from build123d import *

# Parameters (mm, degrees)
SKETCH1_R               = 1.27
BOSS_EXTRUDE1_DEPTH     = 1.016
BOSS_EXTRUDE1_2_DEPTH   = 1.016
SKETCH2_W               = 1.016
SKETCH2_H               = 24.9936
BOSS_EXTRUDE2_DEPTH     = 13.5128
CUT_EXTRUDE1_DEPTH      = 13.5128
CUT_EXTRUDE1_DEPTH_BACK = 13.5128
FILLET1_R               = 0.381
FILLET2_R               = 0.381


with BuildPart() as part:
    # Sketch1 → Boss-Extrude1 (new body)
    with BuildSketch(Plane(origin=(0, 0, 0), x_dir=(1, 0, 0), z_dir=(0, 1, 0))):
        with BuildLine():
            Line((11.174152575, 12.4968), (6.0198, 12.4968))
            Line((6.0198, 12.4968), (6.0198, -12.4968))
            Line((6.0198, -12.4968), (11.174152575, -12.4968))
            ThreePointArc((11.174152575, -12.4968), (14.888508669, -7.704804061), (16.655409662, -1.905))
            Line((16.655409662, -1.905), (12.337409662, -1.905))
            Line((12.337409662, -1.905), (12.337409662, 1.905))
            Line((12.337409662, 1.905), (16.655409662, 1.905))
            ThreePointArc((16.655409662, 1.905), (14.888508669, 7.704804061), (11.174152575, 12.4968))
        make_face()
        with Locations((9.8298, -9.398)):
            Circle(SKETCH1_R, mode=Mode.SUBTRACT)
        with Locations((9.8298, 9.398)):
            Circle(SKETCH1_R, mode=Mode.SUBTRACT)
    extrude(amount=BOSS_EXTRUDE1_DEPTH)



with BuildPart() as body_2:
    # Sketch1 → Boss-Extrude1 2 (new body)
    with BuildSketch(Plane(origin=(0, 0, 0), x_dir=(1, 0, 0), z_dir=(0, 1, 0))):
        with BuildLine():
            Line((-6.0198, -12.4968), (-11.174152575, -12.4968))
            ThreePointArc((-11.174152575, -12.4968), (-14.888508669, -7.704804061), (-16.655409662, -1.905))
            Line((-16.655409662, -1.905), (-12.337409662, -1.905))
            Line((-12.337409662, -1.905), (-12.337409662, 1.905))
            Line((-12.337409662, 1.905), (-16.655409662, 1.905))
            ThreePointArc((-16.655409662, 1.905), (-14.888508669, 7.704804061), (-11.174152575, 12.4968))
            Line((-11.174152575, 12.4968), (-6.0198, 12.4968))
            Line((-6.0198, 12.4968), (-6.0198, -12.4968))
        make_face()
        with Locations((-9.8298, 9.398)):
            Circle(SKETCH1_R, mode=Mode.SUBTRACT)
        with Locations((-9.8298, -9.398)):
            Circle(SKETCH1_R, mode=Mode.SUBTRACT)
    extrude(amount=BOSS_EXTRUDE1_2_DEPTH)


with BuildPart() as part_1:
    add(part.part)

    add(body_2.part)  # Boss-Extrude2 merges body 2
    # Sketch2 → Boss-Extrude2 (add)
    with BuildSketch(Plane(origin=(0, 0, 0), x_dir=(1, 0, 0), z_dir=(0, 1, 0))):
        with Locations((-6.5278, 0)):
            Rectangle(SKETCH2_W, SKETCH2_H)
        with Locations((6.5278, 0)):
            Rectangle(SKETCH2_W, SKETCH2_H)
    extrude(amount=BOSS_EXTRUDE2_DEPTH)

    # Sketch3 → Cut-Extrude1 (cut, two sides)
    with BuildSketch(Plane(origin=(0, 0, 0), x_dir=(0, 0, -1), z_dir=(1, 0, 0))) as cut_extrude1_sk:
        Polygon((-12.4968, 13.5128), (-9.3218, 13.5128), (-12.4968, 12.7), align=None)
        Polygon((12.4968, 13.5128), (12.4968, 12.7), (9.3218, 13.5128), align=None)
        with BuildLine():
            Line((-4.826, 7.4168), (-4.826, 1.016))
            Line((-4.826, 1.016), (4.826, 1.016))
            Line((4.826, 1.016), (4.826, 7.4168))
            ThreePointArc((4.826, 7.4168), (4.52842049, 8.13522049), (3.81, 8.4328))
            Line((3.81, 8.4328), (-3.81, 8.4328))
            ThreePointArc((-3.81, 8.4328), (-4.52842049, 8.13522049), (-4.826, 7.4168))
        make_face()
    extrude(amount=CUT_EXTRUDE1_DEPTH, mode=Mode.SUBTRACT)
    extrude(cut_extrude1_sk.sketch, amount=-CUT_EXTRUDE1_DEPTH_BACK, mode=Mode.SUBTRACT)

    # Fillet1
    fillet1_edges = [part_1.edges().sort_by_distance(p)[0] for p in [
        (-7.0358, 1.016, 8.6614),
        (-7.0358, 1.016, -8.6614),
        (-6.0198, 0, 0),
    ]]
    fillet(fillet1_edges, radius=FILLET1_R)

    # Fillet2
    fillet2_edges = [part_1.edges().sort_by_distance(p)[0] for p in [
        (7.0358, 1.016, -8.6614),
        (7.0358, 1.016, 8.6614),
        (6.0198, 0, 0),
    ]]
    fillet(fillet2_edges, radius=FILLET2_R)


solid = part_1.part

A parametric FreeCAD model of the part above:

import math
import FreeCAD as App
import Part
import Sketcher

V = App.Vector
Q = App.Units.Quantity


def edges_at(feature, points):
    """Names of the edges that pass closest to the given points."""
    edges = feature.Shape.Edges
    near = lambda p: min(range(len(edges)), key=lambda i: edges[i].distToShape(Part.Vertex(*p))[0])
    return sorted({f"Edge{near(p) + 1}" for p in points})

doc = App.newDocument("Part")
body = doc.addObject("PartDesign::Body", "Body")

sketch1 = body.newObject("Sketcher::SketchObject", "Sketch")
sketch1.AttachmentSupport = (doc.getObject("XZ_Plane"), [""])
sketch1.MapMode = "FlatFace"
sketch1.addGeometry([
    Part.LineSegment(V(11.2, -12.5, 0), V(6, -12.5, 0)),
    Part.LineSegment(V(6, -12.5, 0), V(6, 12.5, 0)),
    Part.LineSegment(V(6, 12.5, 0), V(11.2, 12.5, 0)),
    Part.ArcOfCircle(Part.Circle(V(0, 0, 0), V(0, 0, 1), 16.8), math.radians(7), math.radians(48)),
    Part.LineSegment(V(16.7, 1.9, 0), V(12.3, 1.9, 0)),
    Part.LineSegment(V(12.3, 1.9, 0), V(12.3, -1.9, 0)),
    Part.LineSegment(V(12.3, -1.9, 0), V(16.7, -1.9, 0)),
    Part.ArcOfCircle(Part.Circle(V(0, 0, 0), V(0, 0, 1), 16.8), math.radians(-48), math.radians(-7)),
    Part.Circle(V(9.8, 9.4, 0), V(0, 0, 1), 1.3),
    Part.Circle(V(9.8, -9.4, 0), V(0, 0, 1), 1.3),
], False)
sketch1.addConstraint([
    Sketcher.Constraint("Coincident", 0, 2, 1, 1),
    Sketcher.Constraint("Coincident", 1, 2, 2, 1),
    Sketcher.Constraint("Coincident", 2, 2, 3, 2),
    Sketcher.Constraint("Coincident", 3, 1, 4, 1),
    Sketcher.Constraint("Coincident", 4, 2, 5, 1),
    Sketcher.Constraint("Coincident", 5, 2, 6, 1),
    Sketcher.Constraint("Coincident", 6, 2, 7, 2),
    Sketcher.Constraint("Coincident", 7, 1, 0, 1),
    Sketcher.Constraint("Horizontal", 0),
    Sketcher.Constraint("Vertical", 1),
    Sketcher.Constraint("Horizontal", 2),
    Sketcher.Constraint("Horizontal", 4),
    Sketcher.Constraint("Vertical", 5),
    Sketcher.Constraint("Horizontal", 6),
    Sketcher.Constraint("Coincident", 3, 3, -1, 1),
    Sketcher.Constraint("Coincident", 7, 3, -1, 1),
    Sketcher.Constraint("Equal", 3, 7),
    Sketcher.Constraint("Equal", 8, 9),
    Sketcher.Constraint("Symmetric", 8, 3, 9, 3, -1),
    Sketcher.Constraint("Vertical", 3, 1, 6, 2),
    Sketcher.Constraint("Vertical", 2, 2, 7, 1),
    Sketcher.Constraint("Diameter", 8, Q("0.1 in")),
    Sketcher.Constraint("Radius", 3, Q("0.66 in")),
    Sketcher.Constraint("DistanceX", 4, 2, 4, 1, Q("0.17 in")),
    Sketcher.Constraint("DistanceY", 5, 2, 5, 1, Q("0.15 in")),
    Sketcher.Constraint("DistanceY", 1, 1, 1, 2, Q("0.984 in")),
    Sketcher.Constraint("DistanceY", -1, 1, 8, 3, Q("0.37 in")),
    Sketcher.Constraint("DistanceX", 0, 2, 9, 3, Q("0.15 in")),
    Sketcher.Constraint("DistanceX", -1, 1, 8, 3, Q("0.387 in")),
])
pad1 = body.newObject("PartDesign::Pad", "Pad")
pad1.Profile = sketch1
pad1.Length = Q("0.04 in")
pad1.Reversed = True
body2 = doc.addObject("PartDesign::Body", "Body001")

sketch2 = body2.newObject("Sketcher::SketchObject", "Sketch001")
sketch2.AttachmentSupport = (doc.getObject("XZ_Plane001"), [""])
sketch2.MapMode = "FlatFace"
sketch2.addGeometry([
    Part.LineSegment(V(-11.2, 12.5, 0), V(-6, 12.5, 0)),
    Part.LineSegment(V(-6, 12.5, 0), V(-6, -12.5, 0)),
    Part.LineSegment(V(-6, -12.5, 0), V(-11.2, -12.5, 0)),
    Part.ArcOfCircle(Part.Circle(V(0, 0, 0), V(0, 0, 1), 16.8), math.radians(-173), math.radians(-132)),
    Part.LineSegment(V(-16.7, -1.9, 0), V(-12.3, -1.9, 0)),
    Part.LineSegment(V(-12.3, -1.9, 0), V(-12.3, 1.9, 0)),
    Part.LineSegment(V(-12.3, 1.9, 0), V(-16.7, 1.9, 0)),
    Part.ArcOfCircle(Part.Circle(V(0, 0, 0), V(0, 0, 1), 16.8), math.radians(132), math.radians(173)),
    Part.Circle(V(-9.8, 9.4, 0), V(0, 0, 1), 1.3),
    Part.Circle(V(-9.8, -9.4, 0), V(0, 0, 1), 1.3),
], False)
sketch2.addConstraint([
    Sketcher.Constraint("Coincident", 0, 2, 1, 1),
    Sketcher.Constraint("Coincident", 1, 2, 2, 1),
    Sketcher.Constraint("Coincident", 2, 2, 3, 2),
    Sketcher.Constraint("Coincident", 3, 1, 4, 1),
    Sketcher.Constraint("Coincident", 4, 2, 5, 1),
    Sketcher.Constraint("Coincident", 5, 2, 6, 1),
    Sketcher.Constraint("Coincident", 6, 2, 7, 2),
    Sketcher.Constraint("Coincident", 7, 1, 0, 1),
    Sketcher.Constraint("Horizontal", 0),
    Sketcher.Constraint("Vertical", 1),
    Sketcher.Constraint("Horizontal", 2),
    Sketcher.Constraint("Horizontal", 4),
    Sketcher.Constraint("Vertical", 5),
    Sketcher.Constraint("Horizontal", 6),
    Sketcher.Constraint("Coincident", 3, 3, -1, 1),
    Sketcher.Constraint("Coincident", 7, 3, -1, 1),
    Sketcher.Constraint("Equal", 3, 7),
    Sketcher.Constraint("Equal", 8, 9),
    Sketcher.Constraint("Symmetric", 8, 3, 9, 3, -1),
    Sketcher.Constraint("Vertical", 3, 1, 6, 2),
    Sketcher.Constraint("Vertical", 2, 2, 7, 1),
    Sketcher.Constraint("Diameter", 8, Q("0.1 in")),
    Sketcher.Constraint("Radius", 3, Q("0.66 in")),
    Sketcher.Constraint("DistanceX", 4, 1, 4, 2, Q("0.17 in")),
    Sketcher.Constraint("DistanceY", 5, 1, 5, 2, Q("0.15 in")),
    Sketcher.Constraint("DistanceY", 1, 2, 1, 1, Q("0.984 in")),
    Sketcher.Constraint("DistanceY", -1, 1, 8, 3, Q("0.37 in")),
    Sketcher.Constraint("DistanceX", 8, 3, 0, 2, Q("0.15 in")),
    Sketcher.Constraint("DistanceX", 8, 3, -1, 1, Q("0.387 in")),
])
pad2 = body2.newObject("PartDesign::Pad", "Pad001")
pad2.Profile = sketch2
pad2.Length = Q("0.04 in")
pad2.Reversed = True
body.AllowCompound = True
doc.recompute()

boolean = body.newObject("PartDesign::Boolean", "Boolean")
boolean.Type = "Fuse"
boolean.addObjects([body2])

sketch3 = body.newObject("Sketcher::SketchObject", "Sketch002")
sketch3.AttachmentSupport = (doc.getObject("XZ_Plane"), [""])
sketch3.MapMode = "FlatFace"
sketch3.addGeometry([
    Part.LineSegment(V(-7, -12.5, 0), V(-7, 12.5, 0)),
    Part.LineSegment(V(-7, 12.5, 0), V(-6, 12.5, 0)),
    Part.LineSegment(V(-6, 12.5, 0), V(-6, -12.5, 0)),
    Part.LineSegment(V(-6, -12.5, 0), V(-7, -12.5, 0)),
    Part.LineSegment(V(6, -12.5, 0), V(6, 12.5, 0)),
    Part.LineSegment(V(6, 12.5, 0), V(7, 12.5, 0)),
    Part.LineSegment(V(7, 12.5, 0), V(7, -12.5, 0)),
    Part.LineSegment(V(7, -12.5, 0), V(6, -12.5, 0)),
], False)
sketch3.addConstraint([
    Sketcher.Constraint("Coincident", 0, 2, 1, 1),
    Sketcher.Constraint("Coincident", 1, 2, 2, 1),
    Sketcher.Constraint("Coincident", 2, 2, 3, 1),
    Sketcher.Constraint("Coincident", 3, 2, 0, 1),
    Sketcher.Constraint("Coincident", 4, 2, 5, 1),
    Sketcher.Constraint("Coincident", 5, 2, 6, 1),
    Sketcher.Constraint("Coincident", 6, 2, 7, 1),
    Sketcher.Constraint("Coincident", 7, 2, 4, 1),
    Sketcher.Constraint("Vertical", 0),
    Sketcher.Constraint("Horizontal", 1),
    Sketcher.Constraint("Vertical", 2),
    Sketcher.Constraint("Horizontal", 3),
    Sketcher.Constraint("Vertical", 4),
    Sketcher.Constraint("Horizontal", 5),
    Sketcher.Constraint("Vertical", 6),
    Sketcher.Constraint("Horizontal", 7),
    Sketcher.Constraint("Symmetric", 2, 2, 4, 2, -1, 1),
    Sketcher.Constraint("Symmetric", 0, 2, 6, 2, -1, 1),
    Sketcher.Constraint("Horizontal", 1, 2, 4, 2),
    Sketcher.Constraint("DistanceX", 1, 1, 1, 2, Q("0.04 in")),
    Sketcher.Constraint("DistanceY", 0, 1, 0, 2, Q("0.984 in")),
    Sketcher.Constraint("DistanceX", 0, 2, -1, 1, Q("0.277 in")),
])
pad3 = body.newObject("PartDesign::Pad", "Pad002")
pad3.Profile = sketch3
pad3.Length = Q("0.532 in")
pad3.Reversed = True

sketch4 = body.newObject("Sketcher::SketchObject", "Sketch003")
sketch4.AttachmentSupport = (doc.getObject("YZ_Plane"), [""])
sketch4.MapMode = "FlatFace"
sketch4.addGeometry([
    Part.LineSegment(V(13.5, 9.3, 0), V(13.5, 12.5, 0)),
    Part.LineSegment(V(13.5, 12.5, 0), V(12.7, 12.5, 0)),
    Part.LineSegment(V(12.7, 12.5, 0), V(13.5, 9.3, 0)),
    Part.LineSegment(V(12.7, -12.5, 0), V(13.5, -12.5, 0)),
    Part.LineSegment(V(13.5, -12.5, 0), V(13.5, -9.3, 0)),
    Part.LineSegment(V(13.5, -9.3, 0), V(12.7, -12.5, 0)),
    Part.LineSegment(V(7.4, 4.8, 0), V(1, 4.8, 0)),
    Part.LineSegment(V(1, 4.8, 0), V(1, -4.8, 0)),
    Part.LineSegment(V(1, -4.8, 0), V(7.4, -4.8, 0)),
    Part.ArcOfCircle(Part.Circle(V(7.4, -3.8, 0), V(0, 0, 1), 1), math.radians(-90), math.radians(0)),
    Part.LineSegment(V(8.4, -3.8, 0), V(8.4, 3.8, 0)),
    Part.ArcOfCircle(Part.Circle(V(7.4, 3.8, 0), V(0, 0, 1), 1), math.radians(0), math.radians(90)),
], False)
sketch4.addConstraint([
    Sketcher.Constraint("Coincident", 0, 2, 1, 1),
    Sketcher.Constraint("Coincident", 1, 2, 2, 1),
    Sketcher.Constraint("Coincident", 2, 2, 0, 1),
    Sketcher.Constraint("Coincident", 3, 2, 4, 1),
    Sketcher.Constraint("Coincident", 4, 2, 5, 1),
    Sketcher.Constraint("Coincident", 5, 2, 3, 1),
    Sketcher.Constraint("Coincident", 6, 2, 7, 1),
    Sketcher.Constraint("Coincident", 7, 2, 8, 1),
    Sketcher.Constraint("Tangent", 8, 2, 9, 1),
    Sketcher.Constraint("Tangent", 9, 2, 10, 1),
    Sketcher.Constraint("Tangent", 10, 2, 11, 1),
    Sketcher.Constraint("Tangent", 11, 2, 6, 1),
    Sketcher.Constraint("Vertical", 0),
    Sketcher.Constraint("Horizontal", 1),
    Sketcher.Constraint("Horizontal", 3),
    Sketcher.Constraint("Vertical", 4),
    Sketcher.Constraint("Horizontal", 6),
    Sketcher.Constraint("Vertical", 7),
    Sketcher.Constraint("Horizontal", 8),
    Sketcher.Constraint("Vertical", 10),
    Sketcher.Constraint("Equal", 9, 11),
    Sketcher.Constraint("Symmetric", 0, 2, 3, 2, -1),
    Sketcher.Constraint("Vertical", 1, 2, 5, 2),
    Sketcher.Constraint("Equal", 0, 4),
    Sketcher.Constraint("Radius", 9, Q("0.04 in")),
    Sketcher.Constraint("DistanceY", 10, 1, 10, 2, Q("0.3 in")),
    Sketcher.Constraint("DistanceX", -1, 1, 1, 2, Q("0.5 in")),
    Sketcher.Constraint("DistanceX", 9, 2, 4, 2, Q("0.2 in")),
    Sketcher.Constraint("DistanceX", 1, 2, 1, 1, Q("0.032 in")),
    Sketcher.Constraint("DistanceX", 6, 2, 6, 1, Q("0.252 in")),
    Sketcher.Constraint("DistanceY", 0, 1, 0, 2, Q("0.125 in")),
    Sketcher.Constraint("DistanceY", 9, 3, -1, 1, Q("0.15 in")),
    Sketcher.Constraint("DistanceY", -1, 1, 0, 2, Q("0.492 in")),
])
pocket1 = body.newObject("PartDesign::Pocket", "Pocket")
pocket1.Profile = sketch4
pocket1.Type = "ThroughAll"
pocket1.Midplane = True
doc.recompute()

fillet = body.newObject("PartDesign::Fillet", "Fillet")
fillet.Base = (pocket1, edges_at(pocket1, [(-7.036, 1.016, 8.661), (-7.036, 1.016, -8.661), (-6.02, 0, 0)]))
fillet.Radius = Q("0.015 in")
doc.recompute()

fillet2 = body.newObject("PartDesign::Fillet", "Fillet001")
fillet2.Base = (fillet, edges_at(fillet, [(7.036, 1.016, -8.661), (7.036, 1.016, 8.661), (6.02, 0, 0)]))
fillet2.Radius = Q("0.015 in")

doc.recompute()
